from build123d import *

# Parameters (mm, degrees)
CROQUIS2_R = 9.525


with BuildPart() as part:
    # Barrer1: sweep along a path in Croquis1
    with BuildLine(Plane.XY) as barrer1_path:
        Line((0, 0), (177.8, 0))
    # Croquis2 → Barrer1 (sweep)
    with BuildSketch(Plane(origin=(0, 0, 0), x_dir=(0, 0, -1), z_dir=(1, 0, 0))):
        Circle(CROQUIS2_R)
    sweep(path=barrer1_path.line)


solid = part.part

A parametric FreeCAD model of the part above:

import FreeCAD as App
import Part
import Sketcher
Q = App.Units.Quantity

doc = App.newDocument("Part")
params = doc.addObject("Spreadsheet::Sheet", "Params")
for row, (alias, value) in enumerate([
    ("sketch1_diameter", "0.75 in"),
    ("sketch2_width", "7 in"),
], start=1):
    params.set(f"A{row}", alias)
    params.set(f"B{row}", "=" + value)
    params.setAlias(f"B{row}", alias)

body = doc.addObject("PartDesign::Body", "Body")

sketch1 = body.newObject("Sketcher::SketchObject", "Sketch")
sketch1.AttachmentSupport = (doc.getObject("YZ_Plane"), [""])
sketch1.MapMode = "FlatFace"
sketch1.addGeometry(Part.Circle(App.Vector(0, 0, 0), App.Vector(0, 0, 1), 10), False)
sketch1.addConstraint(Sketcher.Constraint("Coincident", 0, 3, -1, 1))
sketch1.addConstraint(Sketcher.Constraint("Diameter", 0, Q("0.75 in")))
sketch1.setExpression("Constraints[1]", "Params.sketch1_diameter")

sketch2 = body.newObject("Sketcher::SketchObject", "Sketch001")
sketch2.AttachmentSupport = (doc.getObject("XY_Plane"), [""])
sketch2.MapMode = "FlatFace"
sketch2.addGeometry(Part.LineSegment(App.Vector(0, 0, 0), App.Vector(178, 0, 0)), False)
sketch2.addConstraint(Sketcher.Constraint("Horizontal", 0))
sketch2.addConstraint(Sketcher.Constraint("Coincident", 0, 1, -1, 1))
sketch2.addConstraint(Sketcher.Constraint("DistanceX", 0, 1, 0, 2, Q("7 in")))
sketch2.setExpression("Constraints[2]", "Params.sketch2_width")
doc.recompute()

additivepipe = body.newObject("PartDesign::AdditivePipe", "AdditivePipe")
additivepipe.Profile = sketch1
additivepipe.Spine = (sketch2, ["Edge1"])

doc.recompute()
